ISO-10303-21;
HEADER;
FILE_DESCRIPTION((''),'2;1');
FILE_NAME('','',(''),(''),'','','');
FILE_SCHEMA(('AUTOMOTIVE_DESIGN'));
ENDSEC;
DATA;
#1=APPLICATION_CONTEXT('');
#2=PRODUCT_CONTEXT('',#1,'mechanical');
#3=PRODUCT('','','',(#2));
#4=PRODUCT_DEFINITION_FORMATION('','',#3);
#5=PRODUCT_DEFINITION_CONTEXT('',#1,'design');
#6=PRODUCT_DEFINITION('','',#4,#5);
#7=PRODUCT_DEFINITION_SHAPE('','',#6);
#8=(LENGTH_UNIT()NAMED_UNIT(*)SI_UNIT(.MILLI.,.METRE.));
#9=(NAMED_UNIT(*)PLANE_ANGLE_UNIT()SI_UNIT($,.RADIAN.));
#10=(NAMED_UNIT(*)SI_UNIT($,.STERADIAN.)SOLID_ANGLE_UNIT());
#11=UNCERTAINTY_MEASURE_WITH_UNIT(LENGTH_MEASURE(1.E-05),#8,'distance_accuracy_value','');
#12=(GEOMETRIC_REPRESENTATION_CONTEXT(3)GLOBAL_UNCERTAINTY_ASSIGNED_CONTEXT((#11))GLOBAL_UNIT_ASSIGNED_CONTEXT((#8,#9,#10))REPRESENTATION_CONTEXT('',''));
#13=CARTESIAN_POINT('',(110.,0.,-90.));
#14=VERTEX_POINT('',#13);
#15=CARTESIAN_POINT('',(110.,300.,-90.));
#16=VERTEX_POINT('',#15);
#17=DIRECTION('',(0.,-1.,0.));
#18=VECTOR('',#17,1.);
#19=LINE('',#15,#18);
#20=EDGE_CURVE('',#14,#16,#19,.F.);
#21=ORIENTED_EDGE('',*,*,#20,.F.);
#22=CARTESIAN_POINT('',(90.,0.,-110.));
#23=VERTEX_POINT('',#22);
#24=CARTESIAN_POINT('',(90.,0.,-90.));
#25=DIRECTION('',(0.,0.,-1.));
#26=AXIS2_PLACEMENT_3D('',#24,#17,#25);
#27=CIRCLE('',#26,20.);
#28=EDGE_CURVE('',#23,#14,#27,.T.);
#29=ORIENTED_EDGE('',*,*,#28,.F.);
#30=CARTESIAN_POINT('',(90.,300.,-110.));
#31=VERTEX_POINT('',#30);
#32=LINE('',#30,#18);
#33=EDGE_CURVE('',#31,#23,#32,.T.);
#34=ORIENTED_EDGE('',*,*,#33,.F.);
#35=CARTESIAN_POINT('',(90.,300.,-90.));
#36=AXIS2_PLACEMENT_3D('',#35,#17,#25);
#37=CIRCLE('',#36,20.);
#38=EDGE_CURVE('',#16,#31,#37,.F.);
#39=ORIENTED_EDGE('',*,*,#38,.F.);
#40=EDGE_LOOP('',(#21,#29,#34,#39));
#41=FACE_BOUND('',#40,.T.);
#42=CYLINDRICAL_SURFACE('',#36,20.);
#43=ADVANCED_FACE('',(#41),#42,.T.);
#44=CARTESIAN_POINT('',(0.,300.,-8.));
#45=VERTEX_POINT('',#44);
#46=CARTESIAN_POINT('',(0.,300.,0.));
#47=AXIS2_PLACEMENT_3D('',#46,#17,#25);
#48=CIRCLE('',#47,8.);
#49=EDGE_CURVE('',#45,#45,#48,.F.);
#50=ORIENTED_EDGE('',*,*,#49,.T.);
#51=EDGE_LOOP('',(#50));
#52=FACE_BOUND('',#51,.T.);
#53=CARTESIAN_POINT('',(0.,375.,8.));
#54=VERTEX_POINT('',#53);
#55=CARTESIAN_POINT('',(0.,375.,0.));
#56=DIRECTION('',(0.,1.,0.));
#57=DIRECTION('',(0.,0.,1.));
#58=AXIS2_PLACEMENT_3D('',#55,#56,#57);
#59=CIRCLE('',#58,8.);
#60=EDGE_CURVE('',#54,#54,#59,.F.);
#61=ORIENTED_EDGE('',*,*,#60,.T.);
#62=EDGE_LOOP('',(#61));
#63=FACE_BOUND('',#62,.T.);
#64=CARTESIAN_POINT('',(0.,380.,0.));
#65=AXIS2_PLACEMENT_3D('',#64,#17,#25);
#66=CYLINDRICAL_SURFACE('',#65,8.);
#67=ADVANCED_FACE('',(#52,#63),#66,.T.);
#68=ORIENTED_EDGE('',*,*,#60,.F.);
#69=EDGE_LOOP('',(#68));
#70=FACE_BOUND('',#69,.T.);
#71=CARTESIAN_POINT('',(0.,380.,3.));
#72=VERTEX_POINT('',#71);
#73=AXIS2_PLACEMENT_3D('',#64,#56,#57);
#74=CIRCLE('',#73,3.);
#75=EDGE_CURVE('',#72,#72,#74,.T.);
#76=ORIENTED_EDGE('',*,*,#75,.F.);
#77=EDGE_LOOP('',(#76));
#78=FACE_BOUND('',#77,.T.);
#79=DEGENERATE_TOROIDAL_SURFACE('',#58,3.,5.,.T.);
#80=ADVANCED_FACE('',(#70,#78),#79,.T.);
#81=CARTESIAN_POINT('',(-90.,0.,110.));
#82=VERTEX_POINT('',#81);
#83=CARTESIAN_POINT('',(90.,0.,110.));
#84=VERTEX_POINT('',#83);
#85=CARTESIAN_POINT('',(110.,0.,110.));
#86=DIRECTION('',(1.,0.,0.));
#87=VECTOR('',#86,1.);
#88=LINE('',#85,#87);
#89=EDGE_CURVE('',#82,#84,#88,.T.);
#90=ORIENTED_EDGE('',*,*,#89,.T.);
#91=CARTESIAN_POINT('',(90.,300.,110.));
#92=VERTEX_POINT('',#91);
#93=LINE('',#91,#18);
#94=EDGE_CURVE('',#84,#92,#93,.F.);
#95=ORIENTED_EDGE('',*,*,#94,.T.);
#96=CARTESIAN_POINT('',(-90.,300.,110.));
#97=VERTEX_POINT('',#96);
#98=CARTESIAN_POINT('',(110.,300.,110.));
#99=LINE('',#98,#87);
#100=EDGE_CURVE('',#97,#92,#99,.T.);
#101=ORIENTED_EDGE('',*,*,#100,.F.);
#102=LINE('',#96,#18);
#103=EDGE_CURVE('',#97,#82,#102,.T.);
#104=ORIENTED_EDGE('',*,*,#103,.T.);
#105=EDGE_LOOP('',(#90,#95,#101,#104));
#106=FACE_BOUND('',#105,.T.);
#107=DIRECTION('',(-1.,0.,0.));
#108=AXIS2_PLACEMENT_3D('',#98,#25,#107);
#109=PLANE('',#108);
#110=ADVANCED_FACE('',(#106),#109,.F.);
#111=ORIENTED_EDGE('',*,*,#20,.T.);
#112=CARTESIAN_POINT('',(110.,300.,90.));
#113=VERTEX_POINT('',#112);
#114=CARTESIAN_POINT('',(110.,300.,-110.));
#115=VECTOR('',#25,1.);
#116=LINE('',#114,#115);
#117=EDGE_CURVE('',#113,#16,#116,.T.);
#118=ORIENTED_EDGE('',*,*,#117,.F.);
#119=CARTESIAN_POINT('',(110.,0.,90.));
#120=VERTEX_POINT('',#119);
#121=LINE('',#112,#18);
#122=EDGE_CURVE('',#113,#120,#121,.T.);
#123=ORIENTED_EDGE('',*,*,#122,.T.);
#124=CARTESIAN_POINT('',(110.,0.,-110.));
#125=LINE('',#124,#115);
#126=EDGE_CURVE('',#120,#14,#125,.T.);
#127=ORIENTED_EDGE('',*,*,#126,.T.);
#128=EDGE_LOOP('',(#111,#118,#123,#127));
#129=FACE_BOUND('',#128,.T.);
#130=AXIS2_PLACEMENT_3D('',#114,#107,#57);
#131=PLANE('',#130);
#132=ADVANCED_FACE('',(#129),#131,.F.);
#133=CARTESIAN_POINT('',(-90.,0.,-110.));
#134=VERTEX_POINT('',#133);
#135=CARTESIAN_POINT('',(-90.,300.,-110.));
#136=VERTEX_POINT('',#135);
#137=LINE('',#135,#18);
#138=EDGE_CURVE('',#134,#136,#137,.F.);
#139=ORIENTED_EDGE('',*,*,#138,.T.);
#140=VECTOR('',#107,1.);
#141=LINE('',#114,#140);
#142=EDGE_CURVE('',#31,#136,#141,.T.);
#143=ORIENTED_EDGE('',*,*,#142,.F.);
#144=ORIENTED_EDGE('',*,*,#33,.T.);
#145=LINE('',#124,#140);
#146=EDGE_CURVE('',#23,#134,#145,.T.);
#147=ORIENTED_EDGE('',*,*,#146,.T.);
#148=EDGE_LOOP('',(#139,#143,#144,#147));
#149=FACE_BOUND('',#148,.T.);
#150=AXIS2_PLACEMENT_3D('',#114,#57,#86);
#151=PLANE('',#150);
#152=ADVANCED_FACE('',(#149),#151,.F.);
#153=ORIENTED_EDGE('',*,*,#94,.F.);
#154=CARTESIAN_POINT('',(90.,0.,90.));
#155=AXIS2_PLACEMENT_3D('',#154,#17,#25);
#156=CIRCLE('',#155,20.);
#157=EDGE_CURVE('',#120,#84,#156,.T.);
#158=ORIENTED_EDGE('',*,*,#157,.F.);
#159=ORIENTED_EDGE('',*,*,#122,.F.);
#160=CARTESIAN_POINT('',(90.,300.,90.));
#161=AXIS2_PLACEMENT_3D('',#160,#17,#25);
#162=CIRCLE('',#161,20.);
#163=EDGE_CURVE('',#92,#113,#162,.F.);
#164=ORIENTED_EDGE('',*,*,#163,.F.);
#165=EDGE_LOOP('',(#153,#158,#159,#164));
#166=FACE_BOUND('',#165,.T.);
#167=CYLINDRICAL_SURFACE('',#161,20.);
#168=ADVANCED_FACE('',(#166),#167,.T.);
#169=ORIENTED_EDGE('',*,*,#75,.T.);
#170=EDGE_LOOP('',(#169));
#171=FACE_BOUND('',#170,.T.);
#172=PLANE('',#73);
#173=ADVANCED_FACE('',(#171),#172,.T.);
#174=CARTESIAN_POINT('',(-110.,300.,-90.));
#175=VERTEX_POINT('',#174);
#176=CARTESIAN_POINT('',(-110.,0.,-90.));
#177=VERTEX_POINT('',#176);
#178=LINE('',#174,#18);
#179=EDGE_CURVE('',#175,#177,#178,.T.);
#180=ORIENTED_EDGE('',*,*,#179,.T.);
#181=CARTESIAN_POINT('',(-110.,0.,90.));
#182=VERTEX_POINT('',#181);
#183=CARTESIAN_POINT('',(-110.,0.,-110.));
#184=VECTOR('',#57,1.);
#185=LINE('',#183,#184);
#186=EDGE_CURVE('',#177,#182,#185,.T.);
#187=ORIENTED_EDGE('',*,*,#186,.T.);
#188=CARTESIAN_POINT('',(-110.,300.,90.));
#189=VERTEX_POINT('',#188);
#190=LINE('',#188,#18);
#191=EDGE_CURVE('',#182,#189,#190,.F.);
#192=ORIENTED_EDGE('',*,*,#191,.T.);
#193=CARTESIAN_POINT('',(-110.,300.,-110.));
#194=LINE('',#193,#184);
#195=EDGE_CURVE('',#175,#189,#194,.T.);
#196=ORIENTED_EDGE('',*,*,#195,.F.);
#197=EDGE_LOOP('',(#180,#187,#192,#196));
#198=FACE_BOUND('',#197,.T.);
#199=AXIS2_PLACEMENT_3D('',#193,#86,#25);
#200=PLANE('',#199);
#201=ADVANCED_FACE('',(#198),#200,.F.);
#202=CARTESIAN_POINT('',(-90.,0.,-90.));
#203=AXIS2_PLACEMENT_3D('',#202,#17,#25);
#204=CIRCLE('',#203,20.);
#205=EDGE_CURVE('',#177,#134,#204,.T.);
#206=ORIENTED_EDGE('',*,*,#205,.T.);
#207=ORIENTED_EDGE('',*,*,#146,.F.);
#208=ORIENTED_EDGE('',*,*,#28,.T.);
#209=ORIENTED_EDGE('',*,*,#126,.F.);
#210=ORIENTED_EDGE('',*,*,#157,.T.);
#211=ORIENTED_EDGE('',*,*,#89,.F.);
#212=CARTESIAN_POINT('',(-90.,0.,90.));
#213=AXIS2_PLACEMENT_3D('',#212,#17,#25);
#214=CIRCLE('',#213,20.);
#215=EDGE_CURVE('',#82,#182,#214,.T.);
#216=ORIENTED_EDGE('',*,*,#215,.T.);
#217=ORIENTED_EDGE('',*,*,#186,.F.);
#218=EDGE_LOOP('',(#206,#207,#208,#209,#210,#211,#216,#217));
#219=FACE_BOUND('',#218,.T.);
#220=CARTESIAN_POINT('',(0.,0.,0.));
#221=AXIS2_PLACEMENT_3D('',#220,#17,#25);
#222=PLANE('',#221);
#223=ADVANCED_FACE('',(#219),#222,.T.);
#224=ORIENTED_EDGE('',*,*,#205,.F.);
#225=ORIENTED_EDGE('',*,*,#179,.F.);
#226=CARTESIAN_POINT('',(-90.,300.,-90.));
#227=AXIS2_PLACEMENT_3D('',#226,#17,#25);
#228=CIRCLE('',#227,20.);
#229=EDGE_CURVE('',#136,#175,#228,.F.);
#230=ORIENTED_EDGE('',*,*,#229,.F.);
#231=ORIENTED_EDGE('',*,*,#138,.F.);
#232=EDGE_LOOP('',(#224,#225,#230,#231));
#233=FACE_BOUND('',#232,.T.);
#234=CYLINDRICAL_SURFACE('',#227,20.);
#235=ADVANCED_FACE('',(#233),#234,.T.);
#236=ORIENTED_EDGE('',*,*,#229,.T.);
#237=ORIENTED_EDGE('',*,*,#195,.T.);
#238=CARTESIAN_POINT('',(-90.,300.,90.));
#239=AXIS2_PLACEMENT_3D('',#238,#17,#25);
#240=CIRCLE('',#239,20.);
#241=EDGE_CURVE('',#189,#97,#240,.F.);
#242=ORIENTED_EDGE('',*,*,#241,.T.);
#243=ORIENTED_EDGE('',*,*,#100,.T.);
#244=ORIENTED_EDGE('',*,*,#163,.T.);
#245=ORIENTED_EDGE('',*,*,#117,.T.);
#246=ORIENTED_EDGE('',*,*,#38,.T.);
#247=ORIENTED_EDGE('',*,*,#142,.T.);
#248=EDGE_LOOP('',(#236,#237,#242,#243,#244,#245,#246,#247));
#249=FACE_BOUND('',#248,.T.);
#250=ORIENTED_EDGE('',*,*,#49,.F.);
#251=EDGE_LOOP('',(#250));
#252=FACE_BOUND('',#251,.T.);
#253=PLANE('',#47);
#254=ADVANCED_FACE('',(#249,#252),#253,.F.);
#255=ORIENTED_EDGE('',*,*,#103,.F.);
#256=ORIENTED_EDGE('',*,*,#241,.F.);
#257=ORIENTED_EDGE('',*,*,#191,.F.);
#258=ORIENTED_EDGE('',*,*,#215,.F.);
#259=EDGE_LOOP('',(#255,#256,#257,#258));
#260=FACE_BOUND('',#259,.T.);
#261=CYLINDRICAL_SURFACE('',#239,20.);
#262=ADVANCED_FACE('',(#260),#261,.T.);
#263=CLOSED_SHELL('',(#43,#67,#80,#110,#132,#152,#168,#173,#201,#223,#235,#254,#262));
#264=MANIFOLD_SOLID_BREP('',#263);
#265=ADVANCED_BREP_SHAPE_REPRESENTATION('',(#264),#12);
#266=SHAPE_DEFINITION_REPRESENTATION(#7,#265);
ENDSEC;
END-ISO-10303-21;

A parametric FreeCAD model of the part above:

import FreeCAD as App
import Part
import Sketcher


def edges_at(feature, points):
    """Names of the edges that pass closest to the given points."""
    edges = feature.Shape.Edges
    near = lambda p: min(range(len(edges)), key=lambda i: edges[i].distToShape(Part.Vertex(*p))[0])
    return sorted({f"Edge{near(p) + 1}" for p in points})

doc = App.newDocument("Part")
params = doc.addObject("Spreadsheet::Sheet", "Params")
for row, (alias, value) in enumerate([
    ("sketch1_width", "220 mm"),
    ("pad1_length", "300 mm"),
    ("sketch2_diameter", "16 mm"),
    ("pad2_length", "80 mm"),
    ("fillet_radius", "20 mm"),
    ("fillet2_radius", "5 mm"),
], start=1):
    params.set(f"A{row}", alias)
    params.set(f"B{row}", "=" + value)
    params.setAlias(f"B{row}", alias)

body = doc.addObject("PartDesign::Body", "Body")

# Sketch on XZ plane
sketch1 = body.newObject("Sketcher::SketchObject", "Sketch")
sketch1.AttachmentSupport = (doc.getObject("XZ_Plane"), [""])
sketch1.MapMode = "FlatFace"
sketch1.addGeometry([
    Part.LineSegment(App.Vector(-110, -110, 0), App.Vector(-110, 110, 0)),
    Part.LineSegment(App.Vector(-110, 110, 0), App.Vector(110, 110, 0)),
    Part.LineSegment(App.Vector(110, 110, 0), App.Vector(110, -110, 0)),
    Part.LineSegment(App.Vector(110, -110, 0), App.Vector(-110, -110, 0)),
], False)
sketch1.addConstraint([
    Sketcher.Constraint("Coincident", 0, 2, 1, 1),
    Sketcher.Constraint("Coincident", 1, 2, 2, 1),
    Sketcher.Constraint("Coincident", 2, 2, 3, 1),
    Sketcher.Constraint("Coincident", 3, 2, 0, 1),
    Sketcher.Constraint("Vertical", 0),
    Sketcher.Constraint("Horizontal", 1),
    Sketcher.Constraint("Vertical", 2),
    Sketcher.Constraint("Horizontal", 3),
    Sketcher.Constraint("Symmetric", 0, 2, 2, 2, -1, 1),
    Sketcher.Constraint("Equal", 3, 0),
    Sketcher.Constraint("DistanceX", 1, 1, 1, 2, 220.0),
])
sketch1.setExpression("Constraints[10]", "Params.sketch1_width")
pad1 = body.newObject("PartDesign::Pad", "Pad")
pad1.Profile = sketch1
pad1.setExpression("Length", "Params.pad1_length")
pad1.Reversed = True

# Sketch on XZ plane
sketch2 = body.newObject("Sketcher::SketchObject", "Sketch001")
sketch2.AttachmentSupport = (doc.getObject("XZ_Plane"), [""])
sketch2.MapMode = "FlatFace"
sketch2.AttachmentOffset = App.Placement(App.Vector(0, 0, -300), App.Rotation())
sketch2.addGeometry(Part.Circle(App.Vector(0, 0, 0), App.Vector(0, 0, 1), 8), False)
sketch2.addConstraint([
    Sketcher.Constraint("Coincident", 0, 3, -1, 1),
    Sketcher.Constraint("Diameter", 0, 16.0),
])
sketch2.setExpression("Constraints[1]", "Params.sketch2_diameter")
pad2 = body.newObject("PartDesign::Pad", "Pad001")
pad2.Profile = sketch2
pad2.setExpression("Length", "Params.pad2_length")
pad2.Reversed = True
doc.recompute()

fillet = body.newObject("PartDesign::Fillet", "Fillet")
fillet.Base = (pad2, edges_at(pad2, [
    (-110, 150, -110),
    (110, 150, -110),
    (110, 150, 110),
    (-110, 150, 110),
]))
fillet.setExpression("Radius", "Params.fillet_radius")
doc.recompute()

fillet2 = body.newObject("PartDesign::Fillet", "Fillet001")
fillet2.Base = (fillet, edges_at(fillet, [(0, 380, 8)]))
fillet2.setExpression("Radius", "Params.fillet2_radius")

doc.recompute()
